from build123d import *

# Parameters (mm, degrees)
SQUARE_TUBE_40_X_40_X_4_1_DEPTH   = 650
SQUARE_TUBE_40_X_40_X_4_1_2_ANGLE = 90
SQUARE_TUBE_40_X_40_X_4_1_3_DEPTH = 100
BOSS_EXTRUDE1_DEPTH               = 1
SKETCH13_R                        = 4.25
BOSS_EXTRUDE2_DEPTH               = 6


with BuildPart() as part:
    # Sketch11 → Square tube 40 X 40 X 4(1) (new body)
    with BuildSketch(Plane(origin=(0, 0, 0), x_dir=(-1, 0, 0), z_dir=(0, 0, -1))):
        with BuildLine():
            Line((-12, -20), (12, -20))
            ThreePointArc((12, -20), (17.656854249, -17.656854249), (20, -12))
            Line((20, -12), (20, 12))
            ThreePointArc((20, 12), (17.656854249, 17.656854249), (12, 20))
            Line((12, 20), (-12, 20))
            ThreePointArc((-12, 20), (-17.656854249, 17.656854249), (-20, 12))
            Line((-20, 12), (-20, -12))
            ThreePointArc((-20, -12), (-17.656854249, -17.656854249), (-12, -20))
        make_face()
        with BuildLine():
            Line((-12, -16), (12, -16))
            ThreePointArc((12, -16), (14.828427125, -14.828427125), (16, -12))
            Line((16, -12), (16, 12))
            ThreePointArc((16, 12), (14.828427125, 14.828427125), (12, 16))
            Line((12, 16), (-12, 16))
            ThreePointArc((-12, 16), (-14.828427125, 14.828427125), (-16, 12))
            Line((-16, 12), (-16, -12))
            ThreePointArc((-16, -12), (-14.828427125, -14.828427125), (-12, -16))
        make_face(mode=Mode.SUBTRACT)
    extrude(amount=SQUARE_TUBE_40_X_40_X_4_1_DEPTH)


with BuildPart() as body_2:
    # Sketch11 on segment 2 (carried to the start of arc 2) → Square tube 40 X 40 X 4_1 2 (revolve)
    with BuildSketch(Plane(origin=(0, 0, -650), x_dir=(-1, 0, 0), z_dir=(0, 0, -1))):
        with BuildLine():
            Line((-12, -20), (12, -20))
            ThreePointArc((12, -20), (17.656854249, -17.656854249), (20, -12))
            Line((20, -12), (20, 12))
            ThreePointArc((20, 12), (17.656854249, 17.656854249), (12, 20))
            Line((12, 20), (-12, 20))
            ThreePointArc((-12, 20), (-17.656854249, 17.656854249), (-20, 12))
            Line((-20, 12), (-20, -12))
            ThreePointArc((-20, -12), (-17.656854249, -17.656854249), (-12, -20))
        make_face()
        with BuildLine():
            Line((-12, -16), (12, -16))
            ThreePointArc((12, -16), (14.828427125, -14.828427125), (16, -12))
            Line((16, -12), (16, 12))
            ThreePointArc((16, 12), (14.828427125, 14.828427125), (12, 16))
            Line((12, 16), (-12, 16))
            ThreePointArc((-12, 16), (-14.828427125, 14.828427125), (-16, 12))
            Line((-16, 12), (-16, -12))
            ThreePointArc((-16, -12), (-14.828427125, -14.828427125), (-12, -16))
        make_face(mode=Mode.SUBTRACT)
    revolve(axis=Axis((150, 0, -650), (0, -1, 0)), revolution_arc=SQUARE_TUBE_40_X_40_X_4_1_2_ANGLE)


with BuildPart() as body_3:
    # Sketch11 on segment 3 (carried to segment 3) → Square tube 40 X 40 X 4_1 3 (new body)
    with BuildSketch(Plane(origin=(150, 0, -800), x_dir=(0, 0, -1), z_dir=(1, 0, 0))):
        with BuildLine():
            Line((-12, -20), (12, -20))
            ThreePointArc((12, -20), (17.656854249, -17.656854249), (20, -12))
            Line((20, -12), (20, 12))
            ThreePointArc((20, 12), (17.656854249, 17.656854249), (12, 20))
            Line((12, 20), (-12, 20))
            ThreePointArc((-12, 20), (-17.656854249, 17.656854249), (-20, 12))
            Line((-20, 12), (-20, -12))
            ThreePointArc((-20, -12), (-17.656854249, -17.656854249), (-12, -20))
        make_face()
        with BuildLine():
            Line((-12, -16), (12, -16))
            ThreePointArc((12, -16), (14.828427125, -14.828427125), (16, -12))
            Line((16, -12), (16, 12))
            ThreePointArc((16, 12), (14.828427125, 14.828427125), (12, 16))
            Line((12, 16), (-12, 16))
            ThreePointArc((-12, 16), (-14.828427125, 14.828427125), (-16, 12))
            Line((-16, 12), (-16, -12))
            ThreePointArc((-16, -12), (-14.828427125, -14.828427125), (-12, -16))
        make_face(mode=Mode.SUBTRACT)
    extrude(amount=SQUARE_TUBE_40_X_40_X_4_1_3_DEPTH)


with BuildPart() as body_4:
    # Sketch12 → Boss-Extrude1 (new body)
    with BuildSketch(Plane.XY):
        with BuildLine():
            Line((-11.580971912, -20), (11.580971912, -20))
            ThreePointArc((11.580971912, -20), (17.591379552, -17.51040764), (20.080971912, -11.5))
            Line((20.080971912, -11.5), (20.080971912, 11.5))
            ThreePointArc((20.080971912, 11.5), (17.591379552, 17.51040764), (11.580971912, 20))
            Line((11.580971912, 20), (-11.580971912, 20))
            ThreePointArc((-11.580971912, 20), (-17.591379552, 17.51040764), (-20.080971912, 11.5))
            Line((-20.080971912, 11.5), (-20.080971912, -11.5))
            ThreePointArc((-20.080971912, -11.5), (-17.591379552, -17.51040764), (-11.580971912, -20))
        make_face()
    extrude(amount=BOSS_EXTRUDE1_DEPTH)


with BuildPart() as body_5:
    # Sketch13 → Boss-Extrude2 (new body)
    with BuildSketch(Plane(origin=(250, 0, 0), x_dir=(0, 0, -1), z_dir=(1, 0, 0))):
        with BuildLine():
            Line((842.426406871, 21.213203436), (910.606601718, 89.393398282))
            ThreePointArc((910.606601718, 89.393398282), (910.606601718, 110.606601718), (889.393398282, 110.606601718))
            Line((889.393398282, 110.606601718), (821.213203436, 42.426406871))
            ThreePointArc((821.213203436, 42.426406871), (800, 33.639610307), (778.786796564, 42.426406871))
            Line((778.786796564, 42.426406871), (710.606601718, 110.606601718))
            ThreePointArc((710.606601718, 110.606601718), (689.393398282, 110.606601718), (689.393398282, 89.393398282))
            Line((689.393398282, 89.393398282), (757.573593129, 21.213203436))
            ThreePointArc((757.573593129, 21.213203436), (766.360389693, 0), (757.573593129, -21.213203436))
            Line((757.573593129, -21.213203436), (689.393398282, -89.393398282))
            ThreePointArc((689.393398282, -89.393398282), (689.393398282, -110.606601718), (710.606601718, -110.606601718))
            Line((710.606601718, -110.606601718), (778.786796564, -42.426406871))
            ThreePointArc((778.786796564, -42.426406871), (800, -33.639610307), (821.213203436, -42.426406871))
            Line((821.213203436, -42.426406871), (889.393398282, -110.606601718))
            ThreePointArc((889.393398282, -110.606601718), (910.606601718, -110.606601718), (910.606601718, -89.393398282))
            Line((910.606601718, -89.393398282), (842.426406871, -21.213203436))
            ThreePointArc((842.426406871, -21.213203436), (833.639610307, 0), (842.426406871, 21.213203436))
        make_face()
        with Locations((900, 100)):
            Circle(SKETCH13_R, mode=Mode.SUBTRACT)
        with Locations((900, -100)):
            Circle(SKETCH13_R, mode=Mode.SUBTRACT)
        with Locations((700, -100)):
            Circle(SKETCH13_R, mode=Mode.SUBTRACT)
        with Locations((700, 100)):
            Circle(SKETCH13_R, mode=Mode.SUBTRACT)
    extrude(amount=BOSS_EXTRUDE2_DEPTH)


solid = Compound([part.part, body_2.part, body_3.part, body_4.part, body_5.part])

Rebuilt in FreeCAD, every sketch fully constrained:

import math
import FreeCAD as App
import Part
import Sketcher

doc = App.newDocument("Part")
body = doc.addObject("PartDesign::Body", "Body")

sketch1 = body.newObject("Sketcher::SketchObject", "Sketch")
sketch1.AttachmentSupport = (doc.getObject("XY_Plane"), [""])
sketch1.MapMode = "FlatFace"
sketch1.addGeometry([
    Part.LineSegment(App.Vector(12, -20, 0), App.Vector(-12, -20, 0)),
    Part.ArcOfCircle(Part.Circle(App.Vector(-12, -12, 0), App.Vector(0, 0, 1), 8), math.radians(-180), math.radians(-90)),
    Part.LineSegment(App.Vector(-20, -12, 0), App.Vector(-20, 12, 0)),
    Part.ArcOfCircle(Part.Circle(App.Vector(-12, 12, 0), App.Vector(0, 0, 1), 8), math.radians(90), math.radians(180)),
    Part.LineSegment(App.Vector(-12, 20, 0), App.Vector(12, 20, 0)),
    Part.ArcOfCircle(Part.Circle(App.Vector(12, 12, 0), App.Vector(0, 0, 1), 8), math.radians(0), math.radians(90)),
    Part.LineSegment(App.Vector(20, 12, 0), App.Vector(20, -12, 0)),
    Part.ArcOfCircle(Part.Circle(App.Vector(12, -12, 0), App.Vector(0, 0, 1), 8), math.radians(-90), math.radians(0)),
    Part.LineSegment(App.Vector(-12, -16, 0), App.Vector(12, -16, 0)),
    Part.ArcOfCircle(Part.Circle(App.Vector(12, -12, 0), App.Vector(0, 0, 1), 4), math.radians(-90), math.radians(0)),
    Part.LineSegment(App.Vector(16, -12, 0), App.Vector(16, 12, 0)),
    Part.ArcOfCircle(Part.Circle(App.Vector(12, 12, 0), App.Vector(0, 0, 1), 4), math.radians(0), math.radians(90)),
    Part.LineSegment(App.Vector(12, 16, 0), App.Vector(-12, 16, 0)),
    Part.ArcOfCircle(Part.Circle(App.Vector(-12, 12, 0), App.Vector(0, 0, 1), 4), math.radians(90), math.radians(180)),
    Part.LineSegment(App.Vector(-16, 12, 0), App.Vector(-16, -12, 0)),
    Part.ArcOfCircle(Part.Circle(App.Vector(-12, -12, 0), App.Vector(0, 0, 1), 4), math.radians(180), math.radians(270)),
], False)
sketch1.addConstraint([
    Sketcher.Constraint("Tangent", 0, 2, 1, 2),
    Sketcher.Constraint("Tangent", 1, 1, 2, 1),
    Sketcher.Constraint("Tangent", 2, 2, 3, 2),
    Sketcher.Constraint("Tangent", 3, 1, 4, 1),
    Sketcher.Constraint("Tangent", 4, 2, 5, 2),
    Sketcher.Constraint("Tangent", 5, 1, 6, 1),
    Sketcher.Constraint("Tangent", 6, 2, 7, 2),
    Sketcher.Constraint("Tangent", 7, 1, 0, 1),
    Sketcher.Constraint("Tangent", 8, 2, 9, 1),
    Sketcher.Constraint("Tangent", 9, 2, 10, 1),
    Sketcher.Constraint("Tangent", 10, 2, 11, 1),
    Sketcher.Constraint("Tangent", 11, 2, 12, 1),
    Sketcher.Constraint("Tangent", 12, 2, 13, 1),
    Sketcher.Constraint("Tangent", 13, 2, 14, 1),
    Sketcher.Constraint("Tangent", 14, 2, 15, 1),
    Sketcher.Constraint("Tangent", 15, 2, 8, 1),
    Sketcher.Constraint("Horizontal", 0),
    Sketcher.Constraint("Vertical", 2),
    Sketcher.Constraint("Horizontal", 4),
    Sketcher.Constraint("Vertical", 6),
    Sketcher.Constraint("Horizontal", 8),
    Sketcher.Constraint("Vertical", 10),
    Sketcher.Constraint("Horizontal", 12),
    Sketcher.Constraint("Vertical", 14),
    Sketcher.Constraint("Coincident", 9, 3, 7, 3),
    Sketcher.Constraint("Coincident", 11, 3, 5, 3),
    Sketcher.Constraint("Coincident", 13, 3, 3, 3),
    Sketcher.Constraint("Equal", 1, 3),
    Sketcher.Constraint("Equal", 3, 5),
    Sketcher.Constraint("Equal", 5, 7),
    Sketcher.Constraint("Equal", 13, 15),
    Sketcher.Constraint("Symmetric", 1, 3, 5, 3, -1, 1),
    Sketcher.Constraint("Equal", 12, 2),
    Sketcher.Constraint("Radius", 1, 8.0),
    Sketcher.Constraint("Radius", 9, 4.0),
    Sketcher.Constraint("DistanceX", 0, 2, 0, 1, 24.0),
])
pad1 = body.newObject("PartDesign::Pad", "Pad")
pad1.Profile = sketch1
pad1.Length = 650
pad1.Reversed = True
body2 = doc.addObject("PartDesign::Body", "Body001")

sketch2 = body2.newObject("Sketcher::SketchObject", "Sketch001")
sketch2.AttachmentSupport = (doc.getObject("XY_Plane001"), [""])
sketch2.MapMode = "FlatFace"
sketch2.AttachmentOffset = App.Placement(App.Vector(0, 0, -650), App.Rotation())
sketch2.addGeometry([
    Part.LineSegment(App.Vector(12, -20, 0), App.Vector(-12, -20, 0)),
    Part.ArcOfCircle(Part.Circle(App.Vector(-12, -12, 0), App.Vector(0, 0, 1), 8), math.radians(-180), math.radians(-90)),
    Part.LineSegment(App.Vector(-20, -12, 0), App.Vector(-20, 12, 0)),
    Part.ArcOfCircle(Part.Circle(App.Vector(-12, 12, 0), App.Vector(0, 0, 1), 8), math.radians(90), math.radians(180)),
    Part.LineSegment(App.Vector(-12, 20, 0), App.Vector(12, 20, 0)),
    Part.ArcOfCircle(Part.Circle(App.Vector(12, 12, 0), App.Vector(0, 0, 1), 8), math.radians(0), math.radians(90)),
    Part.LineSegment(App.Vector(20, 12, 0), App.Vector(20, -12, 0)),
    Part.ArcOfCircle(Part.Circle(App.Vector(12, -12, 0), App.Vector(0, 0, 1), 8), math.radians(-90), math.radians(0)),
    Part.LineSegment(App.Vector(-12, -16, 0), App.Vector(12, -16, 0)),
    Part.ArcOfCircle(Part.Circle(App.Vector(12, -12, 0), App.Vector(0, 0, 1), 4), math.radians(-90), math.radians(0)),
    Part.LineSegment(App.Vector(16, -12, 0), App.Vector(16, 12, 0)),
    Part.ArcOfCircle(Part.Circle(App.Vector(12, 12, 0), App.Vector(0, 0, 1), 4), math.radians(0), math.radians(90)),
    Part.LineSegment(App.Vector(12, 16, 0), App.Vector(-12, 16, 0)),
    Part.ArcOfCircle(Part.Circle(App.Vector(-12, 12, 0), App.Vector(0, 0, 1), 4), math.radians(90), math.radians(180)),
    Part.LineSegment(App.Vector(-16, 12, 0), App.Vector(-16, -12, 0)),
    Part.ArcOfCircle(Part.Circle(App.Vector(-12, -12, 0), App.Vector(0, 0, 1), 4), math.radians(180), math.radians(270)),
], False)
sketch2.addGeometry(Part.LineSegment(App.Vector(150, 20, 0), App.Vector(150, -20, 0)), True)
sketch2.addConstraint([
    Sketcher.Constraint("Tangent", 0, 2, 1, 2),
    Sketcher.Constraint("Tangent", 1, 1, 2, 1),
    Sketcher.Constraint("Tangent", 2, 2, 3, 2),
    Sketcher.Constraint("Tangent", 3, 1, 4, 1),
    Sketcher.Constraint("Tangent", 4, 2, 5, 2),
    Sketcher.Constraint("Tangent", 5, 1, 6, 1),
    Sketcher.Constraint("Tangent", 6, 2, 7, 2),
    Sketcher.Constraint("Tangent", 7, 1, 0, 1),
    Sketcher.Constraint("Tangent", 8, 2, 9, 1),
    Sketcher.Constraint("Tangent", 9, 2, 10, 1),
    Sketcher.Constraint("Tangent", 10, 2, 11, 1),
    Sketcher.Constraint("Tangent", 11, 2, 12, 1),
    Sketcher.Constraint("Tangent", 12, 2, 13, 1),
    Sketcher.Constraint("Tangent", 13, 2, 14, 1),
    Sketcher.Constraint("Tangent", 14, 2, 15, 1),
    Sketcher.Constraint("Tangent", 15, 2, 8, 1),
    Sketcher.Constraint("Horizontal", 0),
    Sketcher.Constraint("Vertical", 2),
    Sketcher.Constraint("Horizontal", 4),
    Sketcher.Constraint("Vertical", 6),
    Sketcher.Constraint("Horizontal", 8),
    Sketcher.Constraint("Vertical", 10),
    Sketcher.Constraint("Horizontal", 12),
    Sketcher.Constraint("Vertical", 14),
    Sketcher.Constraint("Vertical", 16),
    Sketcher.Constraint("Coincident", 9, 3, 7, 3),
    Sketcher.Constraint("Coincident", 11, 3, 5, 3),
    Sketcher.Constraint("Coincident", 13, 3, 3, 3),
    Sketcher.Constraint("Equal", 1, 3),
    Sketcher.Constraint("Equal", 3, 5),
    Sketcher.Constraint("Equal", 5, 7),
    Sketcher.Constraint("Equal", 13, 15),
    Sketcher.Constraint("Symmetric", 1, 3, 5, 3, -1, 1),
    Sketcher.Constraint("Horizontal", 4, 2, 16, 1),
    Sketcher.Constraint("Horizontal", 7, 1, 16, 2),
    Sketcher.Constraint("Equal", 12, 2),
    Sketcher.Constraint("Radius", 1, 8.0),
    Sketcher.Constraint("Radius", 9, 4.0),
    Sketcher.Constraint("DistanceX", 0, 2, 0, 1, 24.0),
    Sketcher.Constraint("DistanceX", -1, 1, 16, 1, 150.0),
])
revolution = body2.newObject("PartDesign::Revolution", "Revolution")
revolution.Profile = sketch2
revolution.ReferenceAxis = (sketch2, ["Axis0"])
revolution.Angle = 90
body3 = doc.addObject("PartDesign::Body", "Body002")

sketch3 = body3.newObject("Sketcher::SketchObject", "Sketch002")
sketch3.AttachmentSupport = (doc.getObject("YZ_Plane002"), [""])
sketch3.MapMode = "FlatFace"
sketch3.AttachmentOffset = App.Placement(App.Vector(0, 0, 150), App.Rotation())
sketch3.addGeometry([
    Part.LineSegment(App.Vector(-20, -788, 0), App.Vector(-20, -812, 0)),
    Part.ArcOfCircle(Part.Circle(App.Vector(-12, -812, 0), App.Vector(0, 0, 1), 8), math.radians(-180), math.radians(-90)),
    Part.LineSegment(App.Vector(-12, -820, 0), App.Vector(12, -820, 0)),
    Part.ArcOfCircle(Part.Circle(App.Vector(12, -812, 0), App.Vector(0, 0, 1), 8), math.radians(-90), math.radians(0)),
    Part.LineSegment(App.Vector(20, -812, 0), App.Vector(20, -788, 0)),
    Part.ArcOfCircle(Part.Circle(App.Vector(12, -788, 0), App.Vector(0, 0, 1), 8), math.radians(0), math.radians(90)),
    Part.LineSegment(App.Vector(12, -780, 0), App.Vector(-12, -780, 0)),
    Part.ArcOfCircle(Part.Circle(App.Vector(-12, -788, 0), App.Vector(0, 0, 1), 8), math.radians(90), math.radians(180)),
    Part.LineSegment(App.Vector(-16, -812, 0), App.Vector(-16, -788, 0)),
    Part.ArcOfCircle(Part.Circle(App.Vector(-12, -788, 0), App.Vector(0, 0, 1), 4), math.radians(90), math.radians(180)),
    Part.LineSegment(App.Vector(-12, -784, 0), App.Vector(12, -784, 0)),
    Part.ArcOfCircle(Part.Circle(App.Vector(12, -788, 0), App.Vector(0, 0, 1), 4), math.radians(0), math.radians(90)),
    Part.LineSegment(App.Vector(16, -788, 0), App.Vector(16, -812, 0)),
    Part.ArcOfCircle(Part.Circle(App.Vector(12, -812, 0), App.Vector(0, 0, 1), 4), math.radians(-90), math.radians(0)),
    Part.LineSegment(App.Vector(12, -816, 0), App.Vector(-12, -816, 0)),
    Part.ArcOfCircle(Part.Circle(App.Vector(-12, -812, 0), App.Vector(0, 0, 1), 4), math.radians(180), math.radians(270)),
], False)
sketch3.addConstraint([
    Sketcher.Constraint("Tangent", 0, 2, 1, 1),
    Sketcher.Constraint("Tangent", 1, 2, 2, 1),
    Sketcher.Constraint("Tangent", 2, 2, 3, 1),
    Sketcher.Constraint("Tangent", 3, 2, 4, 1),
    Sketcher.Constraint("Tangent", 4, 2, 5, 1),
    Sketcher.Constraint("Tangent", 5, 2, 6, 1),
    Sketcher.Constraint("Tangent", 6, 2, 7, 1),
    Sketcher.Constraint("Tangent", 7, 2, 0, 1),
    Sketcher.Constraint("Tangent", 8, 2, 9, 2),
    Sketcher.Constraint("Tangent", 9, 1, 10, 1),
    Sketcher.Constraint("Tangent", 10, 2, 11, 2),
    Sketcher.Constraint("Tangent", 11, 1, 12, 1),
    Sketcher.Constraint("Tangent", 12, 2, 13, 2),
    Sketcher.Constraint("Tangent", 13, 1, 14, 1),
    Sketcher.Constraint("Tangent", 14, 2, 15, 2),
    Sketcher.Constraint("Tangent", 15, 1, 8, 1),
    Sketcher.Constraint("Vertical", 0),
    Sketcher.Constraint("Horizontal", 2),
    Sketcher.Constraint("Vertical", 4),
    Sketcher.Constraint("Horizontal", 6),
    Sketcher.Constraint("Vertical", 8),
    Sketcher.Constraint("Horizontal", 10),
    Sketcher.Constraint("Vertical", 12),
    Sketcher.Constraint("Horizontal", 14),
    Sketcher.Constraint("Coincident", 9, 3, 7, 3),
    Sketcher.Constraint("Coincident", 11, 3, 5, 3),
    Sketcher.Constraint("Coincident", 13, 3, 3, 3),
    Sketcher.Constraint("Equal", 1, 3),
    Sketcher.Constraint("Equal", 3, 5),
    Sketcher.Constraint("Equal", 5, 7),
    Sketcher.Constraint("Equal", 13, 15),
    Sketcher.Constraint("Equal", 14, 0),
    Sketcher.Constraint("Radius", 1, 8.0),
    Sketcher.Constraint("Radius", 9, 4.0),
    Sketcher.Constraint("DistanceX", 2, 1, 2, 2, 24.0),
    Sketcher.Constraint("DistanceX", 1, 3, -1, 1, 12.0),
    Sketcher.Constraint("DistanceY", 1, 3, -1, 1, 812.0),
])
pad2 = body3.newObject("PartDesign::Pad", "Pad001")
pad2.Profile = sketch3
pad2.Length = 100
body4 = doc.addObject("PartDesign::Body", "Body003")

sketch4 = body4.newObject("Sketcher::SketchObject", "Sketch003")
sketch4.AttachmentSupport = (doc.getObject("XY_Plane003"), [""])
sketch4.MapMode = "FlatFace"
sketch4.addGeometry([
    Part.LineSegment(App.Vector(-12, -20, 0), App.Vector(12, -20, 0)),
    Part.ArcOfCircle(Part.Circle(App.Vector(12, -12, 0), App.Vector(0, 0, 1), 8), math.radians(-90), math.radians(0)),
    Part.LineSegment(App.Vector(20, -12, 0), App.Vector(20, 12, 0)),
    Part.ArcOfCircle(Part.Circle(App.Vector(12, 12, 0), App.Vector(0, 0, 1), 8), math.radians(0), math.radians(90)),
    Part.LineSegment(App.Vector(12, 20, 0), App.Vector(-12, 20, 0)),
    Part.ArcOfCircle(Part.Circle(App.Vector(-12, 12, 0), App.Vector(0, 0, 1), 8), math.radians(90), math.radians(180)),
    Part.LineSegment(App.Vector(-20, 12, 0), App.Vector(-20, -12, 0)),
    Part.ArcOfCircle(Part.Circle(App.Vector(-12, -12, 0), App.Vector(0, 0, 1), 8), math.radians(180), math.radians(270)),
], False)
sketch4.addConstraint([
    Sketcher.Constraint("Tangent", 0, 2, 1, 1),
    Sketcher.Constraint("Tangent", 1, 2, 2, 1),
    Sketcher.Constraint("Tangent", 2, 2, 3, 1),
    Sketcher.Constraint("Tangent", 3, 2, 4, 1),
    Sketcher.Constraint("Tangent", 4, 2, 5, 1),
    Sketcher.Constraint("Tangent", 5, 2, 6, 1),
    Sketcher.Constraint("Tangent", 6, 2, 7, 1),
    Sketcher.Constraint("Tangent", 7, 2, 0, 1),
    Sketcher.Constraint("Horizontal", 0),
    Sketcher.Constraint("Vertical", 2),
    Sketcher.Constraint("Horizontal", 4),
    Sketcher.Constraint("Vertical", 6),
    Sketcher.Constraint("Equal", 1, 3),
    Sketcher.Constraint("Equal", 3, 5),
    Sketcher.Constraint("Equal", 5, 7),
    Sketcher.Constraint("Symmetric", 1, 3, 5, 3, -1, 1),
    Sketcher.Constraint("Radius", 1, 8.5),
    Sketcher.Constraint("DistanceY", 2, 1, 2, 2, 23.0),
    Sketcher.Constraint("DistanceX", 0, 1, 0, 2, 23.161944),
])
pad3 = body4.newObject("PartDesign::Pad", "Pad002")
pad3.Profile = sketch4
pad3.Length = 1
body5 = doc.addObject("PartDesign::Body", "Body004")

sketch5 = body5.newObject("Sketcher::SketchObject", "Sketch004")
sketch5.AttachmentSupport = (doc.getObject("YZ_Plane004"), [""])
sketch5.MapMode = "FlatFace"
sketch5.AttachmentOffset = App.Placement(App.Vector(0, 0, 250), App.Rotation())
sketch5.addGeometry([
    Part.LineSegment(App.Vector(21.2, -842.4, 0), App.Vector(89.4, -910.6, 0)),
    Part.ArcOfCircle(Part.Circle(App.Vector(100, -900, 0), App.Vector(0, 0, 1), 15), math.radians(-135), math.radians(45)),
    Part.LineSegment(App.Vector(110.6, -889.4, 0), App.Vector(42.4, -821.2, 0)),
    Part.ArcOfCircle(Part.Circle(App.Vector(63.6, -800, 0), App.Vector(0, 0, 1), 30), math.radians(135), math.radians(225)),
    Part.LineSegment(App.Vector(42.4, -778.8, 0), App.Vector(110.6, -710.6, 0)),
    Part.ArcOfCircle(Part.Circle(App.Vector(100, -700, 0), App.Vector(0, 0, 1), 15), math.radians(-45), math.radians(135)),
    Part.LineSegment(App.Vector(89.4, -689.4, 0), App.Vector(21.2, -757.6, 0)),
    Part.ArcOfCircle(Part.Circle(App.Vector(0, -736.4, 0), App.Vector(0, 0, 1), 30), math.radians(-135), math.radians(-45)),
    Part.LineSegment(App.Vector(-21.2, -757.6, 0), App.Vector(-89.4, -689.4, 0)),
    Part.ArcOfCircle(Part.Circle(App.Vector(-100, -700, 0), App.Vector(0, 0, 1), 15), math.radians(45), math.radians(225)),
    Part.LineSegment(App.Vector(-110.6, -710.6, 0), App.Vector(-42.4, -778.8, 0)),
    Part.ArcOfCircle(Part.Circle(App.Vector(-63.6, -800, 0), App.Vector(0, 0, 1), 30), math.radians(-45), math.radians(45)),
    Part.LineSegment(App.Vector(-42.4, -821.2, 0), App.Vector(-110.6, -889.4, 0)),
    Part.ArcOfCircle(Part.Circle(App.Vector(-100, -900, 0), App.Vector(0, 0, 1), 15), math.radians(135), math.radians(315)),
    Part.LineSegment(App.Vector(-89.4, -910.6, 0), App.Vector(-21.2, -842.4, 0)),
    Part.ArcOfCircle(Part.Circle(App.Vector(0, -863.6, 0), App.Vector(0, 0, 1), 30), math.radians(45), math.radians(135)),
    Part.Circle(App.Vector(-100, -700, 0), App.Vector(0, 0, 1), 4.2),
    Part.Circle(App.Vector(-100, -900, 0), App.Vector(0, 0, 1), 4.2),
    Part.Circle(App.Vector(100, -700, 0), App.Vector(0, 0, 1), 4.2),
    Part.Circle(App.Vector(100, -900, 0), App.Vector(0, 0, 1), 4.2),
], False)
sketch5.addConstraint([
    Sketcher.Constraint("Tangent", 0, 2, 1, 1),
    Sketcher.Constraint("Tangent", 1, 2, 2, 1),
    Sketcher.Constraint("Tangent", 2, 2, 3, 2),
    Sketcher.Constraint("Tangent", 3, 1, 4, 1),
    Sketcher.Constraint("Tangent", 4, 2, 5, 1),
    Sketcher.Constraint("Tangent", 5, 2, 6, 1),
    Sketcher.Constraint("Tangent", 6, 2, 7, 2),
    Sketcher.Constraint("Tangent", 7, 1, 8, 1),
    Sketcher.Constraint("Tangent", 8, 2, 9, 1),
    Sketcher.Constraint("Tangent", 9, 2, 10, 1),
    Sketcher.Constraint("Tangent", 10, 2, 11, 2),
    Sketcher.Constraint("Tangent", 11, 1, 12, 1),
    Sketcher.Constraint("Tangent", 12, 2, 13, 1),
    Sketcher.Constraint("Tangent", 13, 2, 14, 1),
    Sketcher.Constraint("Tangent", 14, 2, 15, 2),
    Sketcher.Constraint("Tangent", 15, 1, 0, 1),
    Sketcher.Constraint("Coincident", 16, 3, 9, 3),
    Sketcher.Constraint("Coincident", 17, 3, 13, 3),
    Sketcher.Constraint("Coincident", 18, 3, 5, 3),
    Sketcher.Constraint("Coincident", 19, 3, 1, 3),
    Sketcher.Constraint("Equal", 1, 5),
    Sketcher.Constraint("Equal", 3, 7),
    Sketcher.Constraint("Equal", 5, 9),
    Sketcher.Constraint("Equal", 7, 11),
    Sketcher.Constraint("Equal", 9, 13),
    Sketcher.Constraint("Equal", 11, 15),
    Sketcher.Constraint("Equal", 16, 17),
    Sketcher.Constraint("Equal", 17, 18),
    Sketcher.Constraint("Equal", 18, 19),
    Sketcher.Constraint("Symmetric", 5, 3, 9, 3, -2),
    Sketcher.Constraint("Symmetric", 3, 3, 11, 3, -2),
    Sketcher.Constraint("Symmetric", 1, 3, 13, 3, -2),
    Sketcher.Constraint("PointOnObject", 7, 3, -2),
    Sketcher.Constraint("PointOnObject", 15, 3, -2),
    Sketcher.Constraint("Parallel", 0, 2),
    Sketcher.Constraint("Perpendicular", 2, 4),
    Sketcher.Constraint("Parallel", 4, 6),
    Sketcher.Constraint("Perpendicular", 6, 8),
    Sketcher.Constraint("Vertical", 1, 3, 5, 3),
    Sketcher.Constraint("Equal", 0, 2),
    Sketcher.Constraint("Radius", 1, 15.0),
    Sketcher.Constraint("Radius", 3, 30.0),
    Sketcher.Constraint("Diameter", 16, 8.5),
    Sketcher.Constraint("DistanceX", -1, 1, 1, 3, 100.0),
    Sketcher.Constraint("DistanceY", 1, 3, -1, 1, 900.0),
])
pad4 = body5.newObject("PartDesign::Pad", "Pad003")
pad4.Profile = sketch5
pad4.Length = 6

doc.recompute()
